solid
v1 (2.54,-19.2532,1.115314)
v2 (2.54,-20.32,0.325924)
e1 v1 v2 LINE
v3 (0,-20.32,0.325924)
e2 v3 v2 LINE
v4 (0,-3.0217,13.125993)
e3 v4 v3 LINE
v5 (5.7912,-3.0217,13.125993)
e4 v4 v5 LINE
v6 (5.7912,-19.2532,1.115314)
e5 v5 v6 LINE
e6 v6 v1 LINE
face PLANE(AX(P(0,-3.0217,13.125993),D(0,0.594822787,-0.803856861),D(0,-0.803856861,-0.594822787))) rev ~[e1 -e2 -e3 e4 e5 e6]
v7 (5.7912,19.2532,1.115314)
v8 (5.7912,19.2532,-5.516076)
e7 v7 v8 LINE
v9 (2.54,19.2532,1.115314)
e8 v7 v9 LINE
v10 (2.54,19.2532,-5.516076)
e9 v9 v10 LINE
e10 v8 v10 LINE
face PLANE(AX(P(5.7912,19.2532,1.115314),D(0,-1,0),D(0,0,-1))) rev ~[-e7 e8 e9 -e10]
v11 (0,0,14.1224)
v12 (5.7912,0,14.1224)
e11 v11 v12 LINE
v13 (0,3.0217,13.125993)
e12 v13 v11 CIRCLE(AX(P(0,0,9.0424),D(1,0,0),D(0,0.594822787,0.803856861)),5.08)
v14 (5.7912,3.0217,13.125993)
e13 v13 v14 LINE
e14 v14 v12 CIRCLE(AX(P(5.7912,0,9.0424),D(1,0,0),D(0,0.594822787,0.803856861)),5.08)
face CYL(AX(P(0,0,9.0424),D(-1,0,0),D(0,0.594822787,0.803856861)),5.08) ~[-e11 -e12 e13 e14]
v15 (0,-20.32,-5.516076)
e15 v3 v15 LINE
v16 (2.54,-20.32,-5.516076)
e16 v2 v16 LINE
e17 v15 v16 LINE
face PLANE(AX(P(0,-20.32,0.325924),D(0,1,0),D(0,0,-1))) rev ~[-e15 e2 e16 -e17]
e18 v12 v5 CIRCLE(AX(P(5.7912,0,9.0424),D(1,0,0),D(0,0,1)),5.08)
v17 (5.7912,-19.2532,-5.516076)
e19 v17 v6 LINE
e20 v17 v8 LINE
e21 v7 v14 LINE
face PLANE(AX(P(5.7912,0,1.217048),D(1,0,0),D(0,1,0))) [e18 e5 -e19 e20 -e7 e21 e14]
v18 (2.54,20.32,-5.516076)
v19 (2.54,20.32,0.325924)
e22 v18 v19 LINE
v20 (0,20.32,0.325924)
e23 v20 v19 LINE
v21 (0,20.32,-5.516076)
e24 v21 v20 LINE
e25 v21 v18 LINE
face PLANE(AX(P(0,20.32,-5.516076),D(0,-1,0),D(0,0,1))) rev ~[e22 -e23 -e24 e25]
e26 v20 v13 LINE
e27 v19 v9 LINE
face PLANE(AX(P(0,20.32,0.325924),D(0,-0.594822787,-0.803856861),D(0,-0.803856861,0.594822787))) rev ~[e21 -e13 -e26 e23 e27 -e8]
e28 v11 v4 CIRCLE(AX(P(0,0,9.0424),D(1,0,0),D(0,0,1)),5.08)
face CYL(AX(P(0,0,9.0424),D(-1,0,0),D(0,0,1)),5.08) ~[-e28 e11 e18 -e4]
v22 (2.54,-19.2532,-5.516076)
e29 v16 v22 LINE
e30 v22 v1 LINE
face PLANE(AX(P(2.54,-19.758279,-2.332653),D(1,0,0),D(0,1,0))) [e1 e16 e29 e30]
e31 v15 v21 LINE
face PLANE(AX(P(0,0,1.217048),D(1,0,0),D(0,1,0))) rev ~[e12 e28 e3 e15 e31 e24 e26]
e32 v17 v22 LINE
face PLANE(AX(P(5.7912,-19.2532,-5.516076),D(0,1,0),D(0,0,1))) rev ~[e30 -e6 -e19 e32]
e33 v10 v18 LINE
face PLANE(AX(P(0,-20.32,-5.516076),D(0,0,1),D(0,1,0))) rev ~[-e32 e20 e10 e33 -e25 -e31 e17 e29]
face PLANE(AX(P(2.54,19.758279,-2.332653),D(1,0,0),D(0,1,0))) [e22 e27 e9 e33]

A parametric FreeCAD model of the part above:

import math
import FreeCAD as App
import Part
import Sketcher
from FreeCAD import Vector
Q = App.Units.Quantity


def add_polygon(sketch, points):
    """Adds a closed chain of lines whose ends are joined by coincident constraints."""
    first, n = sketch.GeometryCount, len(points)
    for a, b in zip(points, points[1:] + points[:1]):
        sketch.addGeometry(Part.LineSegment(App.Vector(*a, 0), App.Vector(*b, 0)), False)
    for i in range(n):
        sketch.addConstraint(Sketcher.Constraint("Coincident", first + i, 2, first + (i + 1) % n, 1))

doc = App.newDocument("Part")
body = doc.addObject("PartDesign::Body", "Body")

# Sketch on YZ plane
sketch1 = doc.addObject("Sketcher::SketchObject", "Sketch")
body.addObject(sketch1)
sketch1.AttachmentSupport = (doc.YZ_Plane, [""])
sketch1.MapMode = "FlatFace"
sketch1.addGeometry(Part.LineSegment(Vector(20.3, 0.3, 0), Vector(3, 13.1, 0)), False)
sketch1.addGeometry(Part.ArcOfCircle(Part.Circle(Vector(0, 9, 0), Vector(0, 0, 1), 5.1), math.radians(53), math.radians(90)), False)
sketch1.addGeometry(Part.ArcOfCircle(Part.Circle(Vector(0, 9, 0), Vector(0, 0, 1), 5.1), math.radians(90), math.radians(127)), False)
sketch1.addGeometry(Part.LineSegment(Vector(-3, 13.1, 0), Vector(-20.3, 0.3, 0)), False)
sketch1.addGeometry(Part.LineSegment(Vector(-20.3, 0.3, 0), Vector(-20.3, -5.5, 0)), False)
sketch1.addGeometry(Part.LineSegment(Vector(-20.3, -5.5, 0), Vector(20.3, -5.5, 0)), False)
sketch1.addGeometry(Part.LineSegment(Vector(20.3, -5.5, 0), Vector(20.3, 0.3, 0)), False)
sketch1.addConstraint(Sketcher.Constraint("Tangent", 0, 2, 1, 1))
sketch1.addConstraint(Sketcher.Constraint("Tangent", 1, 2, 2, 1))
sketch1.addConstraint(Sketcher.Constraint("Tangent", 2, 2, 3, 1))
sketch1.addConstraint(Sketcher.Constraint("Coincident", 3, 2, 4, 1))
sketch1.addConstraint(Sketcher.Constraint("Coincident", 4, 2, 5, 1))
sketch1.addConstraint(Sketcher.Constraint("Coincident", 5, 2, 6, 1))
sketch1.addConstraint(Sketcher.Constraint("Coincident", 6, 2, 0, 1))
sketch1.addConstraint(Sketcher.Constraint("Vertical", 4))
sketch1.addConstraint(Sketcher.Constraint("Horizontal", 5))
sketch1.addConstraint(Sketcher.Constraint("Vertical", 6))
sketch1.addConstraint(Sketcher.Constraint("Equal", 1, 2))
sketch1.addConstraint(Sketcher.Constraint("Symmetric", 0, 2, 2, 2, -2))
sketch1.addConstraint(Sketcher.Constraint("PointOnObject", 1, 2, -2))
sketch1.addConstraint(Sketcher.Constraint("Horizontal", 3, 2, 6, 2))
sketch1.addConstraint(Sketcher.Constraint("Radius", 1, Q("0.2 in")))
sketch1.addConstraint(Sketcher.Constraint("DistanceX", 5, 1, 5, 2, Q("1.6 in")))
sketch1.addConstraint(Sketcher.Constraint("DistanceY", 4, 2, 4, 1, Q("0.23 in")))
sketch1.addConstraint(Sketcher.Constraint("Angle", 0, Q("143.5 deg")))
sketch1.addConstraint(Sketcher.Constraint("DistanceY", -1, 1, 1, 3, Q("0.356 in")))
pad1 = doc.addObject("PartDesign::Pad", "Pad")
body.addObject(pad1)
pad1.Profile = sketch1
pad1.Length = Q("0.228 in")

# Sketch on YZ plane
sketch2 = doc.addObject("Sketcher::SketchObject", "Sketch001")
body.addObject(sketch2)
sketch2.AttachmentSupport = (doc.YZ_Plane, [""])
sketch2.MapMode = "FlatFace"
sketch2.AttachmentOffset = App.Placement(Vector(0, 0, 0.228 * 25.4), App.Rotation())
add_polygon(sketch2, [(20.3, -5.5), (20.3, 0.3), (19.3, 1.1), (19.3, -5.5)])  # lines 0-3
add_polygon(sketch2, [(-19.3, 1.1), (-20.3, 0.3), (-20.3, -5.5), (-19.3, -5.5)])  # lines 4-7
sketch2.addConstraint(Sketcher.Constraint("Vertical", 0))
sketch2.addConstraint(Sketcher.Constraint("Vertical", 2))
sketch2.addConstraint(Sketcher.Constraint("Horizontal", 3))
sketch2.addConstraint(Sketcher.Constraint("Vertical", 5))
sketch2.addConstraint(Sketcher.Constraint("Horizontal", 6))
sketch2.addConstraint(Sketcher.Constraint("Vertical", 7))
sketch2.addConstraint(Sketcher.Constraint("Symmetric", 0, 2, 4, 2, -2))
sketch2.addConstraint(Sketcher.Constraint("Symmetric", 2, 2, 6, 2, -2))
sketch2.addConstraint(Sketcher.Constraint("Horizontal", 1, 2, 7, 2))
sketch2.addConstraint(Sketcher.Constraint("DistanceY", 0, 1, 0, 2, Q("0.23 in")))
sketch2.addConstraint(Sketcher.Constraint("DistanceX", -1, 1, 0, 2, Q("0.8 in")))
sketch2.addConstraint(Sketcher.Constraint("Angle", 1, Q("143.5 deg")))
sketch2.addConstraint(Sketcher.Constraint("DistanceX", 3, 1, 3, 2, Q("0.042 in")))
sketch2.addConstraint(Sketcher.Constraint("DistanceY", -1, 1, 0, 2, Q("0.325924 mm")))
pocket1 = doc.addObject("PartDesign::Pocket", "Pocket")
body.addObject(pocket1)
pocket1.Profile = sketch2
pocket1.Length = Q("0.128 in")

doc.recompute()
